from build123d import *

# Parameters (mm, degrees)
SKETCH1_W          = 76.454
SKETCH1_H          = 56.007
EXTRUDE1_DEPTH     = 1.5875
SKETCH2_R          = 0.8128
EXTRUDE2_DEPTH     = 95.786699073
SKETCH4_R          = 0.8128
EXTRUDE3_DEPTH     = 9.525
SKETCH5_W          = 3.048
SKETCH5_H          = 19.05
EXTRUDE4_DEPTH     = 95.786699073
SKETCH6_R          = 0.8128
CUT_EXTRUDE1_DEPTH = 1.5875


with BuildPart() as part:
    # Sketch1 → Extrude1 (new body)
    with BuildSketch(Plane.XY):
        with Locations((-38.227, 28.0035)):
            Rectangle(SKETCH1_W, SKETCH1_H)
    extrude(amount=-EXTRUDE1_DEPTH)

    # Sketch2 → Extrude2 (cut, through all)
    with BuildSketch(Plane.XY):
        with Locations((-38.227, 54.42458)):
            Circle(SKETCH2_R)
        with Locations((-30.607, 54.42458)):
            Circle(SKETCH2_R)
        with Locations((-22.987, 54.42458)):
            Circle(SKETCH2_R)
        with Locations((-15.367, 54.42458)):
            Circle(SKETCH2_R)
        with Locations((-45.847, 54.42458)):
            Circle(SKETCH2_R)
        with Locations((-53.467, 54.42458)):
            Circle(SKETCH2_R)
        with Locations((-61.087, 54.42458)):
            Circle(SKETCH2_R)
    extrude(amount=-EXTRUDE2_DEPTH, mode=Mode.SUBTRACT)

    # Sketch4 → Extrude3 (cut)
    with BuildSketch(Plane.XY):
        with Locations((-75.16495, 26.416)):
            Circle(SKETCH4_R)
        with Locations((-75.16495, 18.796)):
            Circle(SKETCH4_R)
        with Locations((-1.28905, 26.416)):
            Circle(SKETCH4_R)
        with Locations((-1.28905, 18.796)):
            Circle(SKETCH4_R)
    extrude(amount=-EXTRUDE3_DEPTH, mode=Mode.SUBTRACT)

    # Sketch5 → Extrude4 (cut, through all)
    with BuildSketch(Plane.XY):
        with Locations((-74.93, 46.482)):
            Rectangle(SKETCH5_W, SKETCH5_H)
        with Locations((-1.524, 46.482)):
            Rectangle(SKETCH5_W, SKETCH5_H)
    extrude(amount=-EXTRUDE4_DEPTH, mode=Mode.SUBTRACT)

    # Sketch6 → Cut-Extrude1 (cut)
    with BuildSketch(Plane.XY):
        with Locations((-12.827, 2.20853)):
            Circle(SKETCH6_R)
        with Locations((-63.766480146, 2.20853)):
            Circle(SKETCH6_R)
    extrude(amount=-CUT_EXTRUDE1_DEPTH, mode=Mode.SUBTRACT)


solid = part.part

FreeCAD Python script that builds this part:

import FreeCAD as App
import Part
import Sketcher
Q = App.Units.Quantity

doc = App.newDocument("Part")
body = doc.addObject("PartDesign::Body", "Body")

# Sketch on XY plane
sketch1 = body.newObject("Sketcher::SketchObject", "Sketch")
sketch1.AttachmentSupport = (doc.getObject("XY_Plane"), [""])
sketch1.MapMode = "FlatFace"
sketch1.addGeometry([
    Part.LineSegment(App.Vector(-76, 56, 0), App.Vector(-76, 0, 0)),
    Part.LineSegment(App.Vector(-76, 0, 0), App.Vector(0, 0, 0)),
    Part.LineSegment(App.Vector(0, 0, 0), App.Vector(0, 56, 0)),
    Part.LineSegment(App.Vector(0, 56, 0), App.Vector(-76, 56, 0)),
], False)
sketch1.addConstraint([
    Sketcher.Constraint("Coincident", 0, 2, 1, 1),
    Sketcher.Constraint("Coincident", 1, 2, 2, 1),
    Sketcher.Constraint("Coincident", 2, 2, 3, 1),
    Sketcher.Constraint("Coincident", 3, 2, 0, 1),
    Sketcher.Constraint("Vertical", 0),
    Sketcher.Constraint("Horizontal", 1),
    Sketcher.Constraint("Vertical", 2),
    Sketcher.Constraint("Horizontal", 3),
    Sketcher.Constraint("Coincident", 1, 2, -1, 1),
    Sketcher.Constraint("DistanceX", 1, 1, 1, 2, Q("3.01 in")),
    Sketcher.Constraint("DistanceY", 0, 2, 0, 1, Q("2.205 in")),
])
pad1 = body.newObject("PartDesign::Pad", "Pad")
pad1.Profile = sketch1
pad1.Length = Q("0.0625 in")
pad1.Reversed = True

# Sketch on XY plane
sketch2 = body.newObject("Sketcher::SketchObject", "Sketch001")
sketch2.AttachmentSupport = (doc.getObject("XY_Plane"), [""])
sketch2.MapMode = "FlatFace"
sketch2.addGeometry([
    Part.Circle(App.Vector(-38.2, 54.4, 0), App.Vector(0, 0, 1), 0.8),  # 0
    Part.Circle(App.Vector(-30.6, 54.4, 0), App.Vector(0, 0, 1), 0.8),  # 1
    Part.Circle(App.Vector(-23, 54.4, 0), App.Vector(0, 0, 1), 0.8),  # 2
    Part.Circle(App.Vector(-15.4, 54.4, 0), App.Vector(0, 0, 1), 0.8),  # 3
    Part.Circle(App.Vector(-45.8, 54.4, 0), App.Vector(0, 0, 1), 0.8),  # 4
    Part.Circle(App.Vector(-53.5, 54.4, 0), App.Vector(0, 0, 1), 0.8),  # 5
    Part.Circle(App.Vector(-61.1, 54.4, 0), App.Vector(0, 0, 1), 0.8),  # 6
], False)
sketch2.addConstraint([
    Sketcher.Constraint("Equal", 0, 1),
    Sketcher.Constraint("Equal", 1, 2),
    Sketcher.Constraint("Equal", 2, 3),
    Sketcher.Constraint("Equal", 3, 4),
    Sketcher.Constraint("Equal", 4, 5),
    Sketcher.Constraint("Equal", 5, 6),
    Sketcher.Constraint("Horizontal", 0, 3, 1, 3),
    Sketcher.Constraint("Horizontal", 1, 3, 2, 3),
    Sketcher.Constraint("Horizontal", 2, 3, 3, 3),
    Sketcher.Constraint("Horizontal", 3, 3, 4, 3),
    Sketcher.Constraint("Horizontal", 4, 3, 5, 3),
    Sketcher.Constraint("Horizontal", 5, 3, 6, 3),
    Sketcher.Constraint("Diameter", 0, Q("0.064 in")),
    Sketcher.Constraint("DistanceX", 0, 3, 1, 3, Q("0.3 in")),
    Sketcher.Constraint("DistanceX", 1, 3, 2, 3, Q("0.3 in")),
    Sketcher.Constraint("DistanceX", 2, 3, 3, 3, Q("0.3 in")),
    Sketcher.Constraint("DistanceX", 4, 3, 0, 3, Q("0.3 in")),
    Sketcher.Constraint("DistanceX", 5, 3, 4, 3, Q("0.3 in")),
    Sketcher.Constraint("DistanceX", 6, 3, 5, 3, Q("0.3 in")),
    Sketcher.Constraint("DistanceX", 0, 3, -1, 1, Q("1.505 in")),
    Sketcher.Constraint("DistanceY", -1, 1, 0, 3, Q("2.1427 in")),
])
pocket1 = body.newObject("PartDesign::Pocket", "Pocket")
pocket1.Profile = sketch2
pocket1.Type = "ThroughAll"

# Sketch on XY plane
sketch3 = body.newObject("Sketcher::SketchObject", "Sketch002")
sketch3.AttachmentSupport = (doc.getObject("XY_Plane"), [""])
sketch3.MapMode = "FlatFace"
sketch3.addGeometry([
    Part.Circle(App.Vector(-75.2, 26.4, 0), App.Vector(0, 0, 1), 0.8),
    Part.Circle(App.Vector(-75.2, 18.8, 0), App.Vector(0, 0, 1), 0.8),
    Part.Circle(App.Vector(-1.3, 26.4, 0), App.Vector(0, 0, 1), 0.8),
    Part.Circle(App.Vector(-1.3, 18.8, 0), App.Vector(0, 0, 1), 0.8),
], False)
sketch3.addConstraint([
    Sketcher.Constraint("Equal", 0, 1),
    Sketcher.Constraint("Equal", 1, 2),
    Sketcher.Constraint("Equal", 2, 3),
    Sketcher.Constraint("Horizontal", 0, 3, 2, 3),
    Sketcher.Constraint("Horizontal", 1, 3, 3, 3),
    Sketcher.Constraint("Vertical", 0, 3, 1, 3),
    Sketcher.Constraint("Vertical", 2, 3, 3, 3),
    Sketcher.Constraint("Diameter", 0, Q("0.064 in")),
    Sketcher.Constraint("DistanceY", 1, 3, 0, 3, Q("0.3 in")),
    Sketcher.Constraint("DistanceY", -1, 1, 0, 3, Q("1.04 in")),
    Sketcher.Constraint("DistanceX", 0, 3, 2, 3, Q("2.9085 in")),
    Sketcher.Constraint("DistanceX", 0, 3, -1, 1, 75.16495),
])
pocket2 = body.newObject("PartDesign::Pocket", "Pocket001")
pocket2.Profile = sketch3
pocket2.Length = Q("0.375 in")

# Sketch on XY plane
sketch4 = body.newObject("Sketcher::SketchObject", "Sketch003")
sketch4.AttachmentSupport = (doc.getObject("XY_Plane"), [""])
sketch4.MapMode = "FlatFace"
sketch4.addGeometry([
    Part.LineSegment(App.Vector(-76.5, 56, 0), App.Vector(-76.5, 37, 0)),  # 0
    Part.LineSegment(App.Vector(-76.5, 37, 0), App.Vector(-73.4, 37, 0)),  # 1
    Part.LineSegment(App.Vector(-73.4, 37, 0), App.Vector(-73.4, 56, 0)),  # 2
    Part.LineSegment(App.Vector(-73.4, 56, 0), App.Vector(-76.5, 56, 0)),  # 3
    Part.LineSegment(App.Vector(-3, 56, 0), App.Vector(-3, 37, 0)),  # 4
    Part.LineSegment(App.Vector(-3, 37, 0), App.Vector(0, 37, 0)),  # 5
    Part.LineSegment(App.Vector(0, 37, 0), App.Vector(0, 56, 0)),  # 6
    Part.LineSegment(App.Vector(0, 56, 0), App.Vector(-3, 56, 0)),  # 7
], False)
sketch4.addConstraint([
    Sketcher.Constraint("Coincident", 0, 2, 1, 1),
    Sketcher.Constraint("Coincident", 1, 2, 2, 1),
    Sketcher.Constraint("Coincident", 2, 2, 3, 1),
    Sketcher.Constraint("Coincident", 3, 2, 0, 1),
    Sketcher.Constraint("Coincident", 4, 2, 5, 1),
    Sketcher.Constraint("Coincident", 5, 2, 6, 1),
    Sketcher.Constraint("Coincident", 6, 2, 7, 1),
    Sketcher.Constraint("Coincident", 7, 2, 4, 1),
    Sketcher.Constraint("Vertical", 0),
    Sketcher.Constraint("Horizontal", 1),
    Sketcher.Constraint("Vertical", 2),
    Sketcher.Constraint("Horizontal", 3),
    Sketcher.Constraint("Vertical", 4),
    Sketcher.Constraint("Horizontal", 5),
    Sketcher.Constraint("Vertical", 6),
    Sketcher.Constraint("Horizontal", 7),
    Sketcher.Constraint("PointOnObject", 5, 2, -2),
    Sketcher.Constraint("Horizontal", 1, 2, 4, 2),
    Sketcher.Constraint("Horizontal", 3, 2, 6, 2),
    Sketcher.Constraint("Equal", 3, 5),
    Sketcher.Constraint("DistanceX", 1, 1, 1, 2, Q("0.12 in")),
    Sketcher.Constraint("DistanceY", 0, 2, 0, 1, Q("0.75 in")),
    Sketcher.Constraint("DistanceX", 0, 2, -1, 1, Q("3.01 in")),
    Sketcher.Constraint("DistanceY", -1, 1, 0, 2, Q("1.455 in")),
])
pocket3 = body.newObject("PartDesign::Pocket", "Pocket002")
pocket3.Profile = sketch4
pocket3.Type = "ThroughAll"

# Sketch on XY plane
sketch5 = body.newObject("Sketcher::SketchObject", "Sketch004")
sketch5.AttachmentSupport = (doc.getObject("XY_Plane"), [""])
sketch5.MapMode = "FlatFace"
sketch5.addGeometry([
    Part.Circle(App.Vector(-12.8, 2.2, 0), App.Vector(0, 0, 1), 0.8),
    Part.Circle(App.Vector(-63.8, 2.2, 0), App.Vector(0, 0, 1), 0.8),
], False)
sketch5.addConstraint([
    Sketcher.Constraint("Equal", 0, 1),
    Sketcher.Constraint("Horizontal", 0, 3, 1, 3),
    Sketcher.Constraint("Diameter", 0, Q("0.064 in")),
    Sketcher.Constraint("DistanceX", 0, 3, -1, 1, Q("0.505 in")),
    Sketcher.Constraint("DistanceY", -1, 1, 0, 3, 2.20853),
    Sketcher.Constraint("DistanceX", 1, 3, -1, 1, 63.76648),
])
pocket4 = body.newObject("PartDesign::Pocket", "Pocket003")
pocket4.Profile = sketch5
pocket4.Length = Q("0.0625 in")

doc.recompute()
